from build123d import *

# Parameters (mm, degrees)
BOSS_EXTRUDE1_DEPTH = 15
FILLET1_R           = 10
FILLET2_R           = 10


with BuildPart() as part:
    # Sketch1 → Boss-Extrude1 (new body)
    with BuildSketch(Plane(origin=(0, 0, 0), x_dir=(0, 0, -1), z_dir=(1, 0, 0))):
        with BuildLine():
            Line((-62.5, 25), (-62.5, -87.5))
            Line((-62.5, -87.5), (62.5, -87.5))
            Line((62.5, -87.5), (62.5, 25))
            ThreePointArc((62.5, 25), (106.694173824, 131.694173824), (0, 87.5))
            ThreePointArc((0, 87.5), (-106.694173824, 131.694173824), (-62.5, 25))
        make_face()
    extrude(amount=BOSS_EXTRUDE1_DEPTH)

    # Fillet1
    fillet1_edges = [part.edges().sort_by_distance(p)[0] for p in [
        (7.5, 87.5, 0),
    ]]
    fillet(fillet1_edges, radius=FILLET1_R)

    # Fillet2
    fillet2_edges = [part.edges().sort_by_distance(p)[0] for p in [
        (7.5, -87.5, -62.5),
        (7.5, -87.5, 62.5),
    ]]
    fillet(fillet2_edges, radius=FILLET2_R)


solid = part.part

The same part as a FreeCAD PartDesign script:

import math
import FreeCAD as App
import Part
import Sketcher

V = App.Vector
Q = App.Units.Quantity


def edges_at(feature, points):
    """Names of the edges that pass closest to the given points."""
    edges = feature.Shape.Edges
    near = lambda p: min(range(len(edges)), key=lambda i: edges[i].distToShape(Part.Vertex(*p))[0])
    return sorted({f"Edge{near(p) + 1}" for p in points})

doc = App.newDocument("Part")
params = doc.addObject("Spreadsheet::Sheet", "Params")
for row, (alias, value) in enumerate([
    ("sketch1_radius", "62.5 mm"),
    ("sketch1_width", "112.5 mm"),
    ("pad1_length", "15 mm"),
    ("fillet_radius", "10 mm"),
    ("fillet2_radius", "10 mm"),
], start=1):
    params.set(f"A{row}", alias)
    params.set(f"B{row}", "=" + value)
    params.setAlias(f"B{row}", alias)

body = doc.addObject("PartDesign::Body", "Body")

sketch1 = body.newObject("Sketcher::SketchObject", "Sketch")
sketch1.AttachmentSupport = (doc.getObject("YZ_Plane"), [""])
sketch1.MapMode = "FlatFace"
sketch1.addGeometry([
    Part.LineSegment(V(25, 62, 0), V(-88, 62, 0)),
    Part.LineSegment(V(-88, 62, 0), V(-88, -62, 0)),
    Part.LineSegment(V(-88, -62, 0), V(25, -62, 0)),
    Part.ArcOfCircle(Part.Circle(V(88, -62, 0), V(0, 0, 1), 62), math.radians(180), math.radians(450)),
    Part.ArcOfCircle(Part.Circle(V(88, 62, 0), V(0, 0, 1), 62), math.radians(-90), math.radians(180)),
], False)
sketch1.addConstraint([
    Sketcher.Constraint("Coincident", 0, 2, 1, 1),
    Sketcher.Constraint("Coincident", 1, 2, 2, 1),
    Sketcher.Constraint("Coincident", 2, 2, 3, 1),
    Sketcher.Constraint("Tangent", 3, 2, 4, 1),
    Sketcher.Constraint("Coincident", 4, 2, 0, 1),
    Sketcher.Constraint("Horizontal", 0),
    Sketcher.Constraint("Vertical", 1),
    Sketcher.Constraint("Horizontal", 2),
    Sketcher.Constraint("Equal", 3, 4),
    Sketcher.Constraint("Symmetric", 3, 3, 4, 3, -1),
    Sketcher.Constraint("Horizontal", 4, 3, 0, 2),
    Sketcher.Constraint("Horizontal", 3, 3, 1, 2),
    Sketcher.Constraint("Radius", 3, Q("62.5 mm")),
    Sketcher.Constraint("DistanceX", 0, 2, 0, 1, Q("112.5 mm")),
    Sketcher.Constraint("DistanceX", -1, 1, 2, 2, Q("25 mm")),
])
sketch1.setExpression("Constraints[12]", "Params.sketch1_radius")
sketch1.setExpression("Constraints[13]", "Params.sketch1_width")
pad1 = body.newObject("PartDesign::Pad", "Pad")
pad1.Profile = sketch1
pad1.setExpression("Length", "Params.pad1_length")
doc.recompute()

fillet = body.newObject("PartDesign::Fillet", "Fillet")
fillet.Base = (pad1, edges_at(pad1, [(7.5, 87.5, 0)]))
fillet.setExpression("Radius", "Params.fillet_radius")
doc.recompute()

fillet2 = body.newObject("PartDesign::Fillet", "Fillet001")
fillet2.Base = (fillet, edges_at(fillet, [(7.5, -87.5, -62.5), (7.5, -87.5, 62.5)]))
fillet2.setExpression("Radius", "Params.fillet2_radius")

doc.recompute()
